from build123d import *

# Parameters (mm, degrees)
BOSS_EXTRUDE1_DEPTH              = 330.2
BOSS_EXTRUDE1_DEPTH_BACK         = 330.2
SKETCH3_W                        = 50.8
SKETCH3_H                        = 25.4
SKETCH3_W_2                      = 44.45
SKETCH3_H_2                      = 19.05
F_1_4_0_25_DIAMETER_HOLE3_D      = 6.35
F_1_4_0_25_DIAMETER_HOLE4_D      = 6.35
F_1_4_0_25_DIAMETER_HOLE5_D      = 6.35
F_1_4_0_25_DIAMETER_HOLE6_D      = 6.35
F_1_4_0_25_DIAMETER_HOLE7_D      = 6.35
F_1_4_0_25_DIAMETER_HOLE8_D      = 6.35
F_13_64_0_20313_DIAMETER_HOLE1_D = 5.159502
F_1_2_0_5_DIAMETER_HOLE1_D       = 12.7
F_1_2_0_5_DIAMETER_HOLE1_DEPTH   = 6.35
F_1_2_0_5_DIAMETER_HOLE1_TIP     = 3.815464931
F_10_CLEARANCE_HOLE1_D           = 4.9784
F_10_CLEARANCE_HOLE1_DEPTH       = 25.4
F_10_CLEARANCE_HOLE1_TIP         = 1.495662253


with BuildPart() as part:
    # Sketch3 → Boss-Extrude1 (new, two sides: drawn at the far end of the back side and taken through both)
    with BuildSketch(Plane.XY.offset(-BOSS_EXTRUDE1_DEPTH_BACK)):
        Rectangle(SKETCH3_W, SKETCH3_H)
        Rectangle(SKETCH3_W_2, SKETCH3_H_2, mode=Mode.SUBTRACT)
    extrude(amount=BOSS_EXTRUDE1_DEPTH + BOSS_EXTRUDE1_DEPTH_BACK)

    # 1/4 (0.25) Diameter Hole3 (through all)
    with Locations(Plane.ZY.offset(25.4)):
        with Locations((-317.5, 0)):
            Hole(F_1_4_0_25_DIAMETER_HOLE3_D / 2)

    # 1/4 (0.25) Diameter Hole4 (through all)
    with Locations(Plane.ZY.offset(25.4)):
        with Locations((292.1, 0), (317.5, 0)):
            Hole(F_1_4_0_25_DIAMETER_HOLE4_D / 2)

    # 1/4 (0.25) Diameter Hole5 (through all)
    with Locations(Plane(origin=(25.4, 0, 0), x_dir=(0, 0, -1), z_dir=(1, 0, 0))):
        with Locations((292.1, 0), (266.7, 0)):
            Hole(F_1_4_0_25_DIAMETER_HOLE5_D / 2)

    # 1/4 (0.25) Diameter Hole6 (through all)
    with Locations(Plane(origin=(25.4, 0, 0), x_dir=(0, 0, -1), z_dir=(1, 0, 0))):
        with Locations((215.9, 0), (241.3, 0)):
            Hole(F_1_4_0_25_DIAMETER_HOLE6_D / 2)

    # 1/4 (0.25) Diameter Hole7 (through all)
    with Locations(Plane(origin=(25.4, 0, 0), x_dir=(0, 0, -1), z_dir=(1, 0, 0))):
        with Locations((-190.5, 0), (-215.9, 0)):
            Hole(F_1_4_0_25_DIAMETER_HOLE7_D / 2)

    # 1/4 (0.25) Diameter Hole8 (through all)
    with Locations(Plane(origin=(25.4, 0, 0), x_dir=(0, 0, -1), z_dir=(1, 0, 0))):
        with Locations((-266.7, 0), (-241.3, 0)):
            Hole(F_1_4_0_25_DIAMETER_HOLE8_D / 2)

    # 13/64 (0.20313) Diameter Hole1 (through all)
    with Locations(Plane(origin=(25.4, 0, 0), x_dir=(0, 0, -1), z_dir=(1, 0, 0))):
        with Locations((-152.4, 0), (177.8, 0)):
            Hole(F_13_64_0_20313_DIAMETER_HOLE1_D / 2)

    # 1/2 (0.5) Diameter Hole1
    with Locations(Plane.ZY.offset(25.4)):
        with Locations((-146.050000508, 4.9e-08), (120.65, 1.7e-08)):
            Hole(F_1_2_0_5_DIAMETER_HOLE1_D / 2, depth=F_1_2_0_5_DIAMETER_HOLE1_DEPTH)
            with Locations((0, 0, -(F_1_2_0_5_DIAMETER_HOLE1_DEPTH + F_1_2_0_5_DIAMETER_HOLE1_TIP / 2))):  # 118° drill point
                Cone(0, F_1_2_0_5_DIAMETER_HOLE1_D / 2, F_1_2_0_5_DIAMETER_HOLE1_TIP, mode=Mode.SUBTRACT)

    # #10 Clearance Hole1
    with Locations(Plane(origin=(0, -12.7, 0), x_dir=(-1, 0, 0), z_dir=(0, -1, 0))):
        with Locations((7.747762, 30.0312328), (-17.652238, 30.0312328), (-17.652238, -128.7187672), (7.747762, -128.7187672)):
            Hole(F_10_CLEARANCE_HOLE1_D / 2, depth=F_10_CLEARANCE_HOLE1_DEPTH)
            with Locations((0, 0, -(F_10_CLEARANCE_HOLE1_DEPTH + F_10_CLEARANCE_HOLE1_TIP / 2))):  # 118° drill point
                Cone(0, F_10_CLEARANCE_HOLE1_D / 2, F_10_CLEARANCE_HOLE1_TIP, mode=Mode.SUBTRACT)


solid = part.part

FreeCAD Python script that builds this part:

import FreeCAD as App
import Part
import Sketcher
Q = App.Units.Quantity


def add_polygon(sketch, points):
    """Adds a closed chain of lines whose ends are joined by coincident constraints."""
    first, n = sketch.GeometryCount, len(points)
    for a, b in zip(points, points[1:] + points[:1]):
        sketch.addGeometry(Part.LineSegment(App.Vector(*a, 0), App.Vector(*b, 0)), False)
    for i in range(n):
        sketch.addConstraint(Sketcher.Constraint("Coincident", first + i, 2, first + (i + 1) % n, 1))

doc = App.newDocument("Part")
body = doc.addObject("PartDesign::Body", "Body")

# Sketch on XY plane
sketch1 = body.newObject("Sketcher::SketchObject", "Sketch")
sketch1.AttachmentSupport = (doc.getObject("XY_Plane"), [""])
sketch1.MapMode = "FlatFace"
add_polygon(sketch1, [(-25, 13), (-25, -13), (25, -13), (25, 13)])  # lines 0-3
add_polygon(sketch1, [(22, -10), (-22, -10), (-22, 10), (22, 10)])  # lines 4-7
sketch1.addConstraint(Sketcher.Constraint("Vertical", 0))
sketch1.addConstraint(Sketcher.Constraint("Horizontal", 1))
sketch1.addConstraint(Sketcher.Constraint("Vertical", 2))
sketch1.addConstraint(Sketcher.Constraint("Horizontal", 3))
sketch1.addConstraint(Sketcher.Constraint("Horizontal", 4))
sketch1.addConstraint(Sketcher.Constraint("Vertical", 5))
sketch1.addConstraint(Sketcher.Constraint("Horizontal", 6))
sketch1.addConstraint(Sketcher.Constraint("Vertical", 7))
sketch1.addConstraint(Sketcher.Constraint("Symmetric", 0, 2, 2, 2, -1, 1))
sketch1.addConstraint(Sketcher.Constraint("Symmetric", 4, 2, 6, 2, -1, 1))
sketch1.addConstraint(Sketcher.Constraint("DistanceX", 1, 1, 1, 2, Q("2 in")))
sketch1.addConstraint(Sketcher.Constraint("DistanceY", 0, 2, 0, 1, Q("1 in")))
sketch1.addConstraint(Sketcher.Constraint("DistanceX", 4, 2, 4, 1, Q("1.75 in")))
sketch1.addConstraint(Sketcher.Constraint("DistanceY", 5, 1, 5, 2, Q("0.75 in")))
pad1 = body.newObject("PartDesign::Pad", "Pad")
pad1.Profile = sketch1
pad1.Type = "TwoLengths"
pad1.Length = Q("13 in")
pad1.Length2 = Q("13 in")

# Sketch on YZ plane
sketch2 = body.newObject("Sketcher::SketchObject", "Sketch001")
sketch2.AttachmentSupport = (doc.getObject("YZ_Plane"), [""])
sketch2.MapMode = "FlatFace"
sketch2.AttachmentOffset = App.Placement(App.Vector(0, 0, -1 * 25.4), App.Rotation())
sketch2.addGeometry(Part.Circle(App.Vector(0, -317.5, 0), App.Vector(0, 0, 1), 3.2), False)
sketch2.addConstraint(Sketcher.Constraint("PointOnObject", 0, 3, -2))
sketch2.addConstraint(Sketcher.Constraint("Diameter", 0, Q("0.25 in")))
sketch2.addConstraint(Sketcher.Constraint("DistanceY", 0, 3, -1, 1, Q("12.5 in")))
doc.recompute()
hole = body.newObject("PartDesign::Hole", "Hole")
hole.Profile = sketch2
hole.ThreadType = "None"
hole.Diameter = Q("0.25 in")
hole.DepthType = "ThroughAll"
hole.Reversed = True

# Sketch on YZ plane
sketch3 = body.newObject("Sketcher::SketchObject", "Sketch002")
sketch3.AttachmentSupport = (doc.getObject("YZ_Plane"), [""])
sketch3.MapMode = "FlatFace"
sketch3.AttachmentOffset = App.Placement(App.Vector(0, 0, -1 * 25.4), App.Rotation())
sketch3.addGeometry(Part.Circle(App.Vector(0, 292.1, 0), App.Vector(0, 0, 1), 3.2), False)
sketch3.addGeometry(Part.Circle(App.Vector(0, 317.5, 0), App.Vector(0, 0, 1), 3.2), False)
sketch3.addConstraint(Sketcher.Constraint("Equal", 0, 1))
sketch3.addConstraint(Sketcher.Constraint("PointOnObject", 0, 3, -2))
sketch3.addConstraint(Sketcher.Constraint("PointOnObject", 1, 3, -2))
sketch3.addConstraint(Sketcher.Constraint("Diameter", 0, Q("0.25 in")))
sketch3.addConstraint(Sketcher.Constraint("DistanceY", 0, 3, 1, 3, Q("1 in")))
sketch3.addConstraint(Sketcher.Constraint("DistanceY", -1, 1, 0, 3, Q("11.5 in")))
doc.recompute()
hole2 = body.newObject("PartDesign::Hole", "Hole001")
hole2.Profile = sketch3
hole2.ThreadType = "None"
hole2.Diameter = Q("0.25 in")
hole2.DepthType = "ThroughAll"
hole2.Reversed = True

# Sketch on YZ plane
sketch4 = body.newObject("Sketcher::SketchObject", "Sketch003")
sketch4.AttachmentSupport = (doc.getObject("YZ_Plane"), [""])
sketch4.MapMode = "FlatFace"
sketch4.AttachmentOffset = App.Placement(App.Vector(0, 0, 1 * 25.4), App.Rotation())
sketch4.addGeometry(Part.Circle(App.Vector(0, -292.1, 0), App.Vector(0, 0, 1), 3.2), False)
sketch4.addGeometry(Part.Circle(App.Vector(0, -266.7, 0), App.Vector(0, 0, 1), 3.2), False)
sketch4.addConstraint(Sketcher.Constraint("Equal", 0, 1))
sketch4.addConstraint(Sketcher.Constraint("PointOnObject", 0, 3, -2))
sketch4.addConstraint(Sketcher.Constraint("PointOnObject", 1, 3, -2))
sketch4.addConstraint(Sketcher.Constraint("Diameter", 0, Q("0.25 in")))
sketch4.addConstraint(Sketcher.Constraint("DistanceY", 0, 3, 1, 3, Q("1 in")))
sketch4.addConstraint(Sketcher.Constraint("DistanceY", 0, 3, -1, 1, Q("11.5 in")))
doc.recompute()
hole3 = body.newObject("PartDesign::Hole", "Hole002")
hole3.Profile = sketch4
hole3.ThreadType = "None"
hole3.Diameter = Q("0.25 in")
hole3.DepthType = "ThroughAll"

# Sketch on YZ plane
sketch5 = body.newObject("Sketcher::SketchObject", "Sketch004")
sketch5.AttachmentSupport = (doc.getObject("YZ_Plane"), [""])
sketch5.MapMode = "FlatFace"
sketch5.AttachmentOffset = App.Placement(App.Vector(0, 0, 1 * 25.4), App.Rotation())
sketch5.addGeometry(Part.Circle(App.Vector(0, -215.9, 0), App.Vector(0, 0, 1), 3.2), False)
sketch5.addGeometry(Part.Circle(App.Vector(0, -241.3, 0), App.Vector(0, 0, 1), 3.2), False)
sketch5.addConstraint(Sketcher.Constraint("Equal", 0, 1))
sketch5.addConstraint(Sketcher.Constraint("PointOnObject", 0, 3, -2))
sketch5.addConstraint(Sketcher.Constraint("PointOnObject", 1, 3, -2))
sketch5.addConstraint(Sketcher.Constraint("Diameter", 0, Q("0.25 in")))
sketch5.addConstraint(Sketcher.Constraint("DistanceY", 1, 3, 0, 3, Q("1 in")))
sketch5.addConstraint(Sketcher.Constraint("DistanceY", 0, 3, -1, 1, Q("8.5 in")))
doc.recompute()
hole4 = body.newObject("PartDesign::Hole", "Hole003")
hole4.Profile = sketch5
hole4.ThreadType = "None"
hole4.Diameter = Q("0.25 in")
hole4.DepthType = "ThroughAll"

# Sketch on YZ plane
sketch6 = body.newObject("Sketcher::SketchObject", "Sketch005")
sketch6.AttachmentSupport = (doc.getObject("YZ_Plane"), [""])
sketch6.MapMode = "FlatFace"
sketch6.AttachmentOffset = App.Placement(App.Vector(0, 0, 1 * 25.4), App.Rotation())
sketch6.addGeometry(Part.Circle(App.Vector(0, 190.5, 0), App.Vector(0, 0, 1), 3.2), False)
sketch6.addGeometry(Part.Circle(App.Vector(0, 215.9, 0), App.Vector(0, 0, 1), 3.2), False)
sketch6.addConstraint(Sketcher.Constraint("Equal", 0, 1))
sketch6.addConstraint(Sketcher.Constraint("PointOnObject", 0, 3, -2))
sketch6.addConstraint(Sketcher.Constraint("PointOnObject", 1, 3, -2))
sketch6.addConstraint(Sketcher.Constraint("Diameter", 0, Q("0.25 in")))
sketch6.addConstraint(Sketcher.Constraint("DistanceY", 0, 3, 1, 3, Q("1 in")))
sketch6.addConstraint(Sketcher.Constraint("DistanceY", -1, 1, 0, 3, Q("7.5 in")))
doc.recompute()
hole5 = body.newObject("PartDesign::Hole", "Hole004")
hole5.Profile = sketch6
hole5.ThreadType = "None"
hole5.Diameter = Q("0.25 in")
hole5.DepthType = "ThroughAll"

# Sketch on YZ plane
sketch7 = body.newObject("Sketcher::SketchObject", "Sketch006")
sketch7.AttachmentSupport = (doc.getObject("YZ_Plane"), [""])
sketch7.MapMode = "FlatFace"
sketch7.AttachmentOffset = App.Placement(App.Vector(0, 0, 1 * 25.4), App.Rotation())
sketch7.addGeometry(Part.Circle(App.Vector(0, 266.7, 0), App.Vector(0, 0, 1), 3.2), False)
sketch7.addGeometry(Part.Circle(App.Vector(0, 241.3, 0), App.Vector(0, 0, 1), 3.2), False)
sketch7.addConstraint(Sketcher.Constraint("Equal", 0, 1))
sketch7.addConstraint(Sketcher.Constraint("PointOnObject", 0, 3, -2))
sketch7.addConstraint(Sketcher.Constraint("PointOnObject", 1, 3, -2))
sketch7.addConstraint(Sketcher.Constraint("Diameter", 0, Q("0.25 in")))
sketch7.addConstraint(Sketcher.Constraint("DistanceY", 1, 3, 0, 3, Q("1 in")))
sketch7.addConstraint(Sketcher.Constraint("DistanceY", -1, 1, 0, 3, Q("10.5 in")))
doc.recompute()
hole6 = body.newObject("PartDesign::Hole", "Hole005")
hole6.Profile = sketch7
hole6.ThreadType = "None"
hole6.Diameter = Q("0.25 in")
hole6.DepthType = "ThroughAll"

# Sketch on YZ plane
sketch8 = body.newObject("Sketcher::SketchObject", "Sketch007")
sketch8.AttachmentSupport = (doc.getObject("YZ_Plane"), [""])
sketch8.MapMode = "FlatFace"
sketch8.AttachmentOffset = App.Placement(App.Vector(0, 0, 1 * 25.4), App.Rotation())
sketch8.addGeometry(Part.Circle(App.Vector(0, 152.4, 0), App.Vector(0, 0, 1), 2.6), False)
sketch8.addGeometry(Part.Circle(App.Vector(0, -177.8, 0), App.Vector(0, 0, 1), 2.6), False)
sketch8.addConstraint(Sketcher.Constraint("Equal", 0, 1))
sketch8.addConstraint(Sketcher.Constraint("PointOnObject", 0, 3, -2))
sketch8.addConstraint(Sketcher.Constraint("PointOnObject", 1, 3, -2))
sketch8.addConstraint(Sketcher.Constraint("DistanceY", -1, 1, 0, 3, Q("6 in")))
sketch8.addConstraint(Sketcher.Constraint("DistanceY", 1, 3, -1, 1, Q("7 in")))
sketch8.addConstraint(Sketcher.Constraint("Diameter", 0, Q("5.159502 mm")))
doc.recompute()
hole7 = body.newObject("PartDesign::Hole", "Hole006")
hole7.Profile = sketch8
hole7.ThreadType = "None"
hole7.Diameter = 5.159502
hole7.DepthType = "ThroughAll"

# Sketch on YZ plane
sketch9 = body.newObject("Sketcher::SketchObject", "Sketch008")
sketch9.AttachmentSupport = (doc.getObject("YZ_Plane"), [""])
sketch9.MapMode = "FlatFace"
sketch9.AttachmentOffset = App.Placement(App.Vector(0, 0, -1 * 25.4), App.Rotation())
sketch9.addGeometry(Part.Circle(App.Vector(0, -146, 0), App.Vector(0, 0, 1), 6), False)
sketch9.addGeometry(Part.Circle(App.Vector(0, 121, 0), App.Vector(0, 0, 1), 6), False)
sketch9.addConstraint(Sketcher.Constraint("Equal", 0, 1))
sketch9.addConstraint(Sketcher.Constraint("PointOnObject", 0, 3, -2))
sketch9.addConstraint(Sketcher.Constraint("PointOnObject", 1, 3, -2))
sketch9.addConstraint(Sketcher.Constraint("Diameter", 0, Q("0.5 in")))
sketch9.addConstraint(Sketcher.Constraint("DistanceY", 0, 3, 1, 3, Q("10.5 in")))
sketch9.addConstraint(Sketcher.Constraint("DistanceY", 0, 3, -1, 1, Q("5.75 in")))
doc.recompute()
hole8 = body.newObject("PartDesign::Hole", "Hole007")
hole8.Profile = sketch9
hole8.ThreadType = "None"
hole8.Diameter = Q("0.5 in")
hole8.DepthType = "Dimension"
hole8.Depth = Q("0.25 in")
hole8.DrillPoint = "Angled"
hole8.DrillPointAngle = 118
hole8.Reversed = True

# Sketch on XZ plane
sketch10 = body.newObject("Sketcher::SketchObject", "Sketch009")
sketch10.AttachmentSupport = (doc.getObject("XZ_Plane"), [""])
sketch10.MapMode = "FlatFace"
sketch10.AttachmentOffset = App.Placement(App.Vector(0, 0, 0.5 * 25.4), App.Rotation())
sketch10.addGeometry(Part.Circle(App.Vector(-7.7, -30, 0), App.Vector(0, 0, 1), 2.5), False)
sketch10.addGeometry(Part.Circle(App.Vector(17.7, -30, 0), App.Vector(0, 0, 1), 2.5), False)
sketch10.addGeometry(Part.Circle(App.Vector(17.7, 128.7, 0), App.Vector(0, 0, 1), 2.5), False)
sketch10.addGeometry(Part.Circle(App.Vector(-7.7, 128.7, 0), App.Vector(0, 0, 1), 2.5), False)
sketch10.addConstraint(Sketcher.Constraint("Equal", 0, 1))
sketch10.addConstraint(Sketcher.Constraint("Equal", 1, 2))
sketch10.addConstraint(Sketcher.Constraint("Equal", 2, 3))
sketch10.addConstraint(Sketcher.Constraint("Horizontal", 0, 3, 1, 3))
sketch10.addConstraint(Sketcher.Constraint("Horizontal", 2, 3, 3, 3))
sketch10.addConstraint(Sketcher.Constraint("Vertical", 1, 3, 2, 3))
sketch10.addConstraint(Sketcher.Constraint("Vertical", 0, 3, 3, 3))
sketch10.addConstraint(Sketcher.Constraint("Diameter", 0, Q("0.196 in")))
sketch10.addConstraint(Sketcher.Constraint("DistanceX", 0, 3, 1, 3, Q("1 in")))
sketch10.addConstraint(Sketcher.Constraint("DistanceY", 1, 3, 2, 3, Q("6.25 in")))
sketch10.addConstraint(Sketcher.Constraint("DistanceX", 0, 3, -1, 1, Q("7.747762 mm")))
sketch10.addConstraint(Sketcher.Constraint("DistanceY", 0, 3, -1, 1, Q("30.031233 mm")))
doc.recompute()
hole9 = body.newObject("PartDesign::Hole", "Hole008")
hole9.Profile = sketch10
hole9.ThreadType = "None"
hole9.Diameter = Q("0.196 in")
hole9.DepthType = "Dimension"
hole9.Depth = Q("1 in")
hole9.DrillPoint = "Angled"
hole9.DrillPointAngle = 118

doc.recompute()
